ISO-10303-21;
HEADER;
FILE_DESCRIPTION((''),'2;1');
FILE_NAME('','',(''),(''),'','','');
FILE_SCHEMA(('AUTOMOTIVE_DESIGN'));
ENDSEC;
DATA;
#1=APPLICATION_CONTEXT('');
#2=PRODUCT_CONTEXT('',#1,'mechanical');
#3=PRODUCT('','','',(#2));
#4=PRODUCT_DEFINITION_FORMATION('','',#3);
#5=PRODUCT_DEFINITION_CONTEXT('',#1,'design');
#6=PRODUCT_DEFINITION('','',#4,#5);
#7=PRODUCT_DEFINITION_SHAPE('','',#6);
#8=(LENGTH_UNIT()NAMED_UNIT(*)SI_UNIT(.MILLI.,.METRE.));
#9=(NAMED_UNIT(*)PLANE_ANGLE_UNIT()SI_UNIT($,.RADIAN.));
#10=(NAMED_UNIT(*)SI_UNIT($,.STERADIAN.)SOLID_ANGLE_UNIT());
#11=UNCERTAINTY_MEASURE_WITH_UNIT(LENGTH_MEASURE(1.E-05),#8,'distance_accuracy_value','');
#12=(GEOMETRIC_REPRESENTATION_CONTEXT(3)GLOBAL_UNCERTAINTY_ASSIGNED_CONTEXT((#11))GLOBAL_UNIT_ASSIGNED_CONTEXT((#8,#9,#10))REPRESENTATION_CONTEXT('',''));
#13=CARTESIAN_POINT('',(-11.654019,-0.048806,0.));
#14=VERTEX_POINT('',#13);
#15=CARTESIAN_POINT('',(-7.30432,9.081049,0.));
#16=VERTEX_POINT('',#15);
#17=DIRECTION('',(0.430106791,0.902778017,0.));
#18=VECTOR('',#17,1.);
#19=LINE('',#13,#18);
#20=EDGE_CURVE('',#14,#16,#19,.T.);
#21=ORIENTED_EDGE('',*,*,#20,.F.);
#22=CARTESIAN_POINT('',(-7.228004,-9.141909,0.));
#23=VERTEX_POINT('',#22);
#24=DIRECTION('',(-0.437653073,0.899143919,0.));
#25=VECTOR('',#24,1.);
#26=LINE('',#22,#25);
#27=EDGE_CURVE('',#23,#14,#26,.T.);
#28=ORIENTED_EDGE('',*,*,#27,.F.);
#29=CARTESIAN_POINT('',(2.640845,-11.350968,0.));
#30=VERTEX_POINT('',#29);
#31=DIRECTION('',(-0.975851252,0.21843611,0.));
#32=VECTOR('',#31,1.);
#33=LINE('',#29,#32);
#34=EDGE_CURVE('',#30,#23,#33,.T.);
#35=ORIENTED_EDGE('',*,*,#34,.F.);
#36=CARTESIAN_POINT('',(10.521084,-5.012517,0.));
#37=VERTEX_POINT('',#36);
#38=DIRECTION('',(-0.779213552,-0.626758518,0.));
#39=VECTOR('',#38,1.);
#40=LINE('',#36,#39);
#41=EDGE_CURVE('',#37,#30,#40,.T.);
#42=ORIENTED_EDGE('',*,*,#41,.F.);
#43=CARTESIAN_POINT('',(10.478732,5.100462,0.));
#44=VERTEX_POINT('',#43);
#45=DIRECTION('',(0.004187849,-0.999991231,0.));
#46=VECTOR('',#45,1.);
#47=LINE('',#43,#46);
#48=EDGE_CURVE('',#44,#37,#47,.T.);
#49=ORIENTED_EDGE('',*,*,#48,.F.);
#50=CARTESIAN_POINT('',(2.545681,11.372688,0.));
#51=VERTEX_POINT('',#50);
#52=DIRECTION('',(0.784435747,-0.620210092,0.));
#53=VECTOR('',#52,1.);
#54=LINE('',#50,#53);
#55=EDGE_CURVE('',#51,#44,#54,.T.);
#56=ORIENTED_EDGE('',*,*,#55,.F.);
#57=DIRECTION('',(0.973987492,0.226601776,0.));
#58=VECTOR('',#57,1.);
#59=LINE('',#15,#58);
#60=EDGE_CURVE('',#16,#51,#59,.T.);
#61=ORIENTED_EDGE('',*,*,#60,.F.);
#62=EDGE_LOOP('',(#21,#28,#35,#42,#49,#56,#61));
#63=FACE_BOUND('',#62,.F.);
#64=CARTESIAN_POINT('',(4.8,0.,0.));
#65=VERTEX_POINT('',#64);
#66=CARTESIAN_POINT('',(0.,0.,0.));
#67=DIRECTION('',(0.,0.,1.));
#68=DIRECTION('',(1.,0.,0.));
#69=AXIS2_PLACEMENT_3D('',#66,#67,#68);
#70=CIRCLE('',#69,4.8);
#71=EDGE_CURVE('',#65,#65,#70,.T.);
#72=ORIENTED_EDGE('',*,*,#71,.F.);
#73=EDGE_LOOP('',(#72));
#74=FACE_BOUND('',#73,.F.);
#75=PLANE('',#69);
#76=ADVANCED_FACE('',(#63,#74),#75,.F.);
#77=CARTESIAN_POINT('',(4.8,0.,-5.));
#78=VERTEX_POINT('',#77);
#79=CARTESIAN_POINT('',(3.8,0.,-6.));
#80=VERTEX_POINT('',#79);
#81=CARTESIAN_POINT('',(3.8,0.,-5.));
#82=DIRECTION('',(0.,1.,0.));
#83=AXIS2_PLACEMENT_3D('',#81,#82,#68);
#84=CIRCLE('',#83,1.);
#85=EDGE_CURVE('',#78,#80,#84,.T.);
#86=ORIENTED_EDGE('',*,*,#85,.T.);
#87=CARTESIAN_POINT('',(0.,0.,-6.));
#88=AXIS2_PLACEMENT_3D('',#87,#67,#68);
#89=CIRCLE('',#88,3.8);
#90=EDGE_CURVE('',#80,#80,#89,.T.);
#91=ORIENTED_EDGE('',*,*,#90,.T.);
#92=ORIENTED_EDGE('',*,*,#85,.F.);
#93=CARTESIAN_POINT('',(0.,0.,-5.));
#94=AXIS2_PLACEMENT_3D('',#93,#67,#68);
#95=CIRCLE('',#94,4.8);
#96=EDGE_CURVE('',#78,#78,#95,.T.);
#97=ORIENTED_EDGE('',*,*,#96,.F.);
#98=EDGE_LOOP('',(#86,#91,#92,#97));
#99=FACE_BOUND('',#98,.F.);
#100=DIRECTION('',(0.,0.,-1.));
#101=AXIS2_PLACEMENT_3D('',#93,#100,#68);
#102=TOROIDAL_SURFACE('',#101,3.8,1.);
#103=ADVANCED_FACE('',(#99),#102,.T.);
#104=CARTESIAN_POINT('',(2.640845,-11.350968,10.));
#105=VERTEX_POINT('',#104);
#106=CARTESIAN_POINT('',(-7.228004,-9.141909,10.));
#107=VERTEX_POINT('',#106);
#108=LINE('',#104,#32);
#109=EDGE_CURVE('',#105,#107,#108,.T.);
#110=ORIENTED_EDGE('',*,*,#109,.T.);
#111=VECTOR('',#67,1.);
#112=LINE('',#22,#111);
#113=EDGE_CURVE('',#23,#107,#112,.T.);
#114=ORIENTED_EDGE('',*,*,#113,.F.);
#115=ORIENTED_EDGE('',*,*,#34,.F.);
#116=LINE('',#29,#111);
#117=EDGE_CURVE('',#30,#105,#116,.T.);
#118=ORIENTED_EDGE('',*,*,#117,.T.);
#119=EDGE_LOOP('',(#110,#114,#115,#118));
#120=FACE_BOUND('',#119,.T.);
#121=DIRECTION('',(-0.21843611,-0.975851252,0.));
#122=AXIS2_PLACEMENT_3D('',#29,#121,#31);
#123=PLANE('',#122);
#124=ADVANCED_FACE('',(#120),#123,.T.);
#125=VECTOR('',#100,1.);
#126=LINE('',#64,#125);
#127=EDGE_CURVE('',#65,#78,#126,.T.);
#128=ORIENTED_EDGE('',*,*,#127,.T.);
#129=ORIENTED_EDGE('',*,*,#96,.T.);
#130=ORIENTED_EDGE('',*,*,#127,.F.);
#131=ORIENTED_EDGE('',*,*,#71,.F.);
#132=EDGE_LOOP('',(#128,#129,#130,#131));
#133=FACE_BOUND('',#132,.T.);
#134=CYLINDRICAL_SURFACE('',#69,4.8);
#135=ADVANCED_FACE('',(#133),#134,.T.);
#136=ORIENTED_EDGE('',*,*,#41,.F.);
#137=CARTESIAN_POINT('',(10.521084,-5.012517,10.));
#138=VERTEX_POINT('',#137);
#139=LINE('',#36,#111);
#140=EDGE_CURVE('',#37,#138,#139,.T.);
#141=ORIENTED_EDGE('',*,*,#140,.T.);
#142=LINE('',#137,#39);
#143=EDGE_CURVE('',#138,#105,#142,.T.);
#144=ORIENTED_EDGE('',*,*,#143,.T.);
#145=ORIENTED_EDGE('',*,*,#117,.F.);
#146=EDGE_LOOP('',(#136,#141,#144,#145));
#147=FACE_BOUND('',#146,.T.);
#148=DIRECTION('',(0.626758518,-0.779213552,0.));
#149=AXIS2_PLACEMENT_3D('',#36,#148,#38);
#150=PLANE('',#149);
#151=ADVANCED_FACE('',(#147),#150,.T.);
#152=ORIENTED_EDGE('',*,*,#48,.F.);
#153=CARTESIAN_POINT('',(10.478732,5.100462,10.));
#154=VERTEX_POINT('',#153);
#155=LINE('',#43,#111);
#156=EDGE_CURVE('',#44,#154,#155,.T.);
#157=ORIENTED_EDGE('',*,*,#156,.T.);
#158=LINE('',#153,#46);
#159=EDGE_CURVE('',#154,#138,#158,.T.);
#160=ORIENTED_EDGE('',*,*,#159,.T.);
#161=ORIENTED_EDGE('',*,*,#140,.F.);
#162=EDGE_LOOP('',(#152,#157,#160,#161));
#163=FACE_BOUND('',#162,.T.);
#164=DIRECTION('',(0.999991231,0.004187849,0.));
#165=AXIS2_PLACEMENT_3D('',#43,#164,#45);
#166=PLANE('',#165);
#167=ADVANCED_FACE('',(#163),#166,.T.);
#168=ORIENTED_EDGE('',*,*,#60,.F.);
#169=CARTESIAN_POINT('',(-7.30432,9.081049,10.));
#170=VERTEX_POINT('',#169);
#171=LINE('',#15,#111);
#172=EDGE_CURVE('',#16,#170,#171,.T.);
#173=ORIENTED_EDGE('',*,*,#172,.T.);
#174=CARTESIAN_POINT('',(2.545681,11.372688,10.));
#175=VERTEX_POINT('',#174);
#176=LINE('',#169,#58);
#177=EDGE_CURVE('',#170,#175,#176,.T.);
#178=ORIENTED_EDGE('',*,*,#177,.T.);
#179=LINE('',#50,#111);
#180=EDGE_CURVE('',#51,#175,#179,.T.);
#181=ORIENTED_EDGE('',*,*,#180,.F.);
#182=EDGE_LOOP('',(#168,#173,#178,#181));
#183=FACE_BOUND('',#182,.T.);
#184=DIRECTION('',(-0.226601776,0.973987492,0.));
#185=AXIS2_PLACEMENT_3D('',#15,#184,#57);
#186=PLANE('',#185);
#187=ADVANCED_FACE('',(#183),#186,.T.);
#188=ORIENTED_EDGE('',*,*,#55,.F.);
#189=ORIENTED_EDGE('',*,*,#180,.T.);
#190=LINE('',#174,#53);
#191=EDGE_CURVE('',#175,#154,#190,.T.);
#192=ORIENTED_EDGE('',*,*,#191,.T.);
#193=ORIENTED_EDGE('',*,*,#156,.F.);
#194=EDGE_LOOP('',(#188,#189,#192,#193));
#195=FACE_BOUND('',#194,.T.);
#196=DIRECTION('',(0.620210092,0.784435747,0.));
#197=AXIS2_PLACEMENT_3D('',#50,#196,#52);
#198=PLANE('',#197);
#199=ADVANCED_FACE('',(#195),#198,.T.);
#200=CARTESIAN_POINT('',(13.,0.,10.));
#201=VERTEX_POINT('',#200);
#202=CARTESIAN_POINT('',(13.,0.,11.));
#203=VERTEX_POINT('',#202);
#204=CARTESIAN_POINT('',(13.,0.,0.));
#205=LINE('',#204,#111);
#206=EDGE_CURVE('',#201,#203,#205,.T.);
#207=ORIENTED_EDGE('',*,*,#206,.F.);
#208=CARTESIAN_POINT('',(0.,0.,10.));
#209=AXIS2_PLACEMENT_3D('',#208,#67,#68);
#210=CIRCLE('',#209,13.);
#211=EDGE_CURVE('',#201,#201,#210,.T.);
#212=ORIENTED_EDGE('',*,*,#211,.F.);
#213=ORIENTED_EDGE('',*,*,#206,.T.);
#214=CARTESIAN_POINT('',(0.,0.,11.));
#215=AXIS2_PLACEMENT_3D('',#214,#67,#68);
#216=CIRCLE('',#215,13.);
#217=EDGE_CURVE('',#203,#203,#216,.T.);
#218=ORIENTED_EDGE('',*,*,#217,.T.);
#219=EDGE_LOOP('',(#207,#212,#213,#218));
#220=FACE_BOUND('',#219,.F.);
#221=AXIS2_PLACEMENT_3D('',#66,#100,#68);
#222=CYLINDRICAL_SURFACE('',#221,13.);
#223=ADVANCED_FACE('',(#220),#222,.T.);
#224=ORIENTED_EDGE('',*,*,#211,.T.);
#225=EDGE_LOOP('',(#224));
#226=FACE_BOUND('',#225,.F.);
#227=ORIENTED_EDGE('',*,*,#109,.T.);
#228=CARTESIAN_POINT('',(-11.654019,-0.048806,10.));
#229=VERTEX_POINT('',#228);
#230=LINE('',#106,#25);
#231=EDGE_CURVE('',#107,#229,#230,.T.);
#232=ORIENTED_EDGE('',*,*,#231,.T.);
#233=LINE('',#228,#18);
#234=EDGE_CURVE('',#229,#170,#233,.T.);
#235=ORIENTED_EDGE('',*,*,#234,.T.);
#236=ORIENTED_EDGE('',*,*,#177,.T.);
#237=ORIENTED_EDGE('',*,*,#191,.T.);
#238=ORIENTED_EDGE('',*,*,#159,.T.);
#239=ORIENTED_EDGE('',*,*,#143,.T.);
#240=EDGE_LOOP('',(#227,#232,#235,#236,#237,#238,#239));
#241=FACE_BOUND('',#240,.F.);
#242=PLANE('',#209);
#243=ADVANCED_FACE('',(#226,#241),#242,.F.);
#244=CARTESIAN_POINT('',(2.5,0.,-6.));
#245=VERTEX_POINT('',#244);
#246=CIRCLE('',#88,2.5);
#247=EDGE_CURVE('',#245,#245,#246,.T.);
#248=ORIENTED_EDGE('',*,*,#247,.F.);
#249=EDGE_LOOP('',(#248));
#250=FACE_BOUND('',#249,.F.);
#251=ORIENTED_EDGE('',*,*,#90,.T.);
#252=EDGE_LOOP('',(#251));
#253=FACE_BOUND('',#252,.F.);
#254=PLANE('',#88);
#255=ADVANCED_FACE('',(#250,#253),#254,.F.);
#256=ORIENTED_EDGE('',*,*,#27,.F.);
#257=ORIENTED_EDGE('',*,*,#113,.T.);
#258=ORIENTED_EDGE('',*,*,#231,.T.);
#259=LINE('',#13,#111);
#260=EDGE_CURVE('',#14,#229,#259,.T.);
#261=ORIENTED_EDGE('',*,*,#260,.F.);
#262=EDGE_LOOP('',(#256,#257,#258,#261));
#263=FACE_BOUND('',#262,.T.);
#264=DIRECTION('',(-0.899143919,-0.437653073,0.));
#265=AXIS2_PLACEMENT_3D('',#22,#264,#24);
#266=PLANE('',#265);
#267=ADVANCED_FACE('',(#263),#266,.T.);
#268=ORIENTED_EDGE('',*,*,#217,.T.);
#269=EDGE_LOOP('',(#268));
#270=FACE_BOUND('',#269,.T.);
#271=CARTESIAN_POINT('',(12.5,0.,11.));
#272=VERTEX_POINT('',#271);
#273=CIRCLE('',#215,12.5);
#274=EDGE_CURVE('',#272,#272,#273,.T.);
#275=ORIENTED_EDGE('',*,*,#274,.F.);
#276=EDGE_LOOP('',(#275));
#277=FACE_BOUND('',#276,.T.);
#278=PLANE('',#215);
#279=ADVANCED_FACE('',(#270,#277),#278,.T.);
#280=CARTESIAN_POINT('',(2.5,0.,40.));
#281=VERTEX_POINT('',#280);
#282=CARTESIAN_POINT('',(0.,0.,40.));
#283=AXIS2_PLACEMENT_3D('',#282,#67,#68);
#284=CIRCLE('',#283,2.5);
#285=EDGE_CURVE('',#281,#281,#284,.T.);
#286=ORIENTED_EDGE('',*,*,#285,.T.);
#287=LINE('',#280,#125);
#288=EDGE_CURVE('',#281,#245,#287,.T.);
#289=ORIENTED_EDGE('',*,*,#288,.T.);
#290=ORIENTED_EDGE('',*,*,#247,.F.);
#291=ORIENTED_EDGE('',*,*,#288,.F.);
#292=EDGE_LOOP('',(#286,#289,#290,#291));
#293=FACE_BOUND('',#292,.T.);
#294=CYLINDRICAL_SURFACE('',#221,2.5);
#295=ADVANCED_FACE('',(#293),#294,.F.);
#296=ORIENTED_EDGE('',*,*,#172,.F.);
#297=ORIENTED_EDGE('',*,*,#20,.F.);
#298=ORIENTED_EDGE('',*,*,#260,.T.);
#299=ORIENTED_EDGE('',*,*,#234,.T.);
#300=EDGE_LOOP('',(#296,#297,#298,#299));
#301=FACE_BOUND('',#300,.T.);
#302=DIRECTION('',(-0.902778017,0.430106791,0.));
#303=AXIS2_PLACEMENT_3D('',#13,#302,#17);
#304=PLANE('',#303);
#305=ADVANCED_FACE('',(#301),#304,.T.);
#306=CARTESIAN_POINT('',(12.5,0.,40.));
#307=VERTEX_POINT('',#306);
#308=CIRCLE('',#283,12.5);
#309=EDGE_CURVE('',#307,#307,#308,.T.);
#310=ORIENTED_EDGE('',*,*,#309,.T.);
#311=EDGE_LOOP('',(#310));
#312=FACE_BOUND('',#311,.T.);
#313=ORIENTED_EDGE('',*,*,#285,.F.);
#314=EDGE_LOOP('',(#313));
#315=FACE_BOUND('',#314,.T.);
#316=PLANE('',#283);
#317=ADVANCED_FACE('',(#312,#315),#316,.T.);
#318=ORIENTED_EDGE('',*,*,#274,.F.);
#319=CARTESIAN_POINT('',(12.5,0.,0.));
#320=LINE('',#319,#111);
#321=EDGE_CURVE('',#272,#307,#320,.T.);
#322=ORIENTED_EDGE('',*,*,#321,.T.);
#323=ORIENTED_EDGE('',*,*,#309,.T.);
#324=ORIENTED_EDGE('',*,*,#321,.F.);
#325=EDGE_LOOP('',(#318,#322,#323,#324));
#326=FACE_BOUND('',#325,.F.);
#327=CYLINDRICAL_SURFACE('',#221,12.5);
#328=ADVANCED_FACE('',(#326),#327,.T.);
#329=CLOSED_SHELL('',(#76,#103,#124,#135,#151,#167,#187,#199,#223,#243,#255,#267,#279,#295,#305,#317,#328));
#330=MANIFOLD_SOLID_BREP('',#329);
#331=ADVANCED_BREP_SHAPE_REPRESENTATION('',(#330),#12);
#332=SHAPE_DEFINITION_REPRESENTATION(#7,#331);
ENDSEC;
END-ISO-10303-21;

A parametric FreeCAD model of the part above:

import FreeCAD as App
import Part
import Sketcher
Q = App.Units.Quantity


def edges_at(feature, points):
    """Names of the edges that pass closest to the given points."""
    edges = feature.Shape.Edges
    near = lambda p: min(range(len(edges)), key=lambda i: edges[i].distToShape(Part.Vertex(*p))[0])
    return sorted({f"Edge{near(p) + 1}" for p in points})

doc = App.newDocument("Part")
body = doc.addObject("PartDesign::Body", "Body")

sketch1 = body.newObject("Sketcher::SketchObject", "Sketch")
sketch1.AttachmentSupport = (doc.getObject("XY_Plane"), [""])
sketch1.MapMode = "FlatFace"
sketch1.addGeometry([
    Part.Circle(App.Vector(0, 0, 0), App.Vector(0, 0, 1), 4.8),
    Part.Circle(App.Vector(0, 0, 0), App.Vector(0, 0, 1), 2.5),
], False)
sketch1.addConstraint([
    Sketcher.Constraint("Coincident", 0, 3, -1, 1),
    Sketcher.Constraint("Coincident", 1, 3, -1, 1),
    Sketcher.Constraint("Diameter", 1, Q("5 mm")),
    Sketcher.Constraint("Diameter", 0, Q("9.6 mm")),
])
pad1 = body.newObject("PartDesign::Pad", "Pad")
pad1.Profile = sketch1
pad1.Length = 6
pad1.Reversed = True

sketch2 = body.newObject("Sketcher::SketchObject", "Sketch001")
sketch2.AttachmentSupport = (doc.getObject("XY_Plane"), [""])
sketch2.MapMode = "FlatFace"
sketch2.addGeometry([
    Part.LineSegment(App.Vector(2.640845, -11.350968, 0), App.Vector(10.521084, -5.012517, 0)),
    Part.LineSegment(App.Vector(10.521084, -5.012517, 0), App.Vector(10.478732, 5.100462, 0)),
    Part.LineSegment(App.Vector(10.478732, 5.100462, 0), App.Vector(2.545681, 11.372688, 0)),
    Part.LineSegment(App.Vector(2.545681, 11.372688, 0), App.Vector(-7.30432, 9.081049, 0)),
    Part.LineSegment(App.Vector(-7.30432, 9.081049, 0), App.Vector(-11.654019, -0.048806, 0)),
    Part.LineSegment(App.Vector(-11.654019, -0.048806, 0), App.Vector(-7.228004, -9.141909, 0)),
    Part.LineSegment(App.Vector(-7.228004, -9.141909, 0), App.Vector(2.640845, -11.350968, 0)),
    Part.Circle(App.Vector(0, 0, 0), App.Vector(0, 0, 1), 2.5),
], False)
sketch2.addConstraint([
    Sketcher.Constraint("Coincident", 0, 2, 1, 1),
    Sketcher.Constraint("Coincident", 1, 2, 2, 1),
    Sketcher.Constraint("Coincident", 2, 2, 3, 1),
    Sketcher.Constraint("Coincident", 3, 2, 4, 1),
    Sketcher.Constraint("Coincident", 4, 2, 5, 1),
    Sketcher.Constraint("Coincident", 5, 2, 6, 1),
    Sketcher.Constraint("Coincident", 6, 2, 0, 1),
    Sketcher.Constraint("Coincident", 7, 3, -1, 1),
    Sketcher.Constraint("Equal", 0, 1),
    Sketcher.Constraint("Equal", 1, 2),
    Sketcher.Constraint("Equal", 2, 3),
    Sketcher.Constraint("Equal", 3, 4),
    Sketcher.Constraint("Equal", 4, 5),
    Sketcher.Constraint("Equal", 5, 6),
    Sketcher.Constraint("Diameter", 7, Q("5 mm")),
    Sketcher.Constraint("DistanceX", 3, 2, 2, 2, Q("9.850001 mm")),
    Sketcher.Constraint("DistanceX", 4, 2, 3, 2, Q("4.349699 mm")),
    Sketcher.Constraint("DistanceX", -1, 1, 2, 2, Q("2.545681 mm")),
    Sketcher.Constraint("DistanceY", -1, 1, 3, 2, Q("9.081049 mm")),
    Sketcher.Constraint("DistanceY", 5, 2, -1, 1, Q("9.141909 mm")),
    Sketcher.Constraint("DistanceX", 1, 2, 0, 2, Q("0.042352 mm")),
    Sketcher.Constraint("DistanceY", 0, 2, 1, 2, Q("10.112979 mm")),
    Sketcher.Constraint("DistanceX", 2, 2, 1, 2, Q("7.933051 mm")),
])
pad2 = body.newObject("PartDesign::Pad", "Pad001")
pad2.Profile = sketch2
pad2.Length = 40

sketch3 = body.newObject("Sketcher::SketchObject", "Sketch002")
sketch3.AttachmentSupport = (doc.getObject("XY_Plane"), [""])
sketch3.MapMode = "FlatFace"
sketch3.addGeometry([
    Part.Circle(App.Vector(0, 0, 0), App.Vector(0, 0, 1), 12.5),
    Part.LineSegment(App.Vector(2.545681, 11.372688, 0), App.Vector(10.478732, 5.100462, 0)),
    Part.LineSegment(App.Vector(10.478732, 5.100462, 0), App.Vector(10.521084, -5.012517, 0)),
    Part.LineSegment(App.Vector(10.521084, -5.012517, 0), App.Vector(2.640845, -11.350968, 0)),
    Part.LineSegment(App.Vector(2.640845, -11.350968, 0), App.Vector(-7.228004, -9.141909, 0)),
    Part.LineSegment(App.Vector(-7.228004, -9.141909, 0), App.Vector(-11.654019, -0.048806, 0)),
    Part.LineSegment(App.Vector(-11.654019, -0.048806, 0), App.Vector(-7.30432, 9.081049, 0)),
    Part.LineSegment(App.Vector(-7.30432, 9.081049, 0), App.Vector(2.545681, 11.372688, 0)),
], False)
sketch3.addConstraint([
    Sketcher.Constraint("Coincident", 1, 2, 2, 1),
    Sketcher.Constraint("Coincident", 2, 2, 3, 1),
    Sketcher.Constraint("Coincident", 3, 2, 4, 1),
    Sketcher.Constraint("Coincident", 4, 2, 5, 1),
    Sketcher.Constraint("Coincident", 5, 2, 6, 1),
    Sketcher.Constraint("Coincident", 6, 2, 7, 1),
    Sketcher.Constraint("Coincident", 7, 2, 1, 1),
    Sketcher.Constraint("Coincident", 0, 3, -1, 1),
    Sketcher.Constraint("Equal", 1, 2),
    Sketcher.Constraint("Equal", 2, 3),
    Sketcher.Constraint("Equal", 3, 4),
    Sketcher.Constraint("Equal", 4, 5),
    Sketcher.Constraint("Equal", 5, 6),
    Sketcher.Constraint("Equal", 6, 7),
    Sketcher.Constraint("Diameter", 0, Q("25 mm")),
    Sketcher.Constraint("DistanceX", 6, 2, 7, 2, Q("9.850001 mm")),
    Sketcher.Constraint("DistanceX", 5, 2, 6, 2, Q("4.349699 mm")),
    Sketcher.Constraint("DistanceY", 4, 2, -1, 1, Q("9.141909 mm")),
    Sketcher.Constraint("DistanceX", 5, 2, -1, 1, Q("11.654019 mm")),
    Sketcher.Constraint("DistanceY", -1, 1, 6, 2, Q("9.081049 mm")),
    Sketcher.Constraint("DistanceX", 1, 2, 2, 2, Q("0.042352 mm")),
    Sketcher.Constraint("DistanceY", 2, 2, 1, 2, Q("10.112979 mm")),
    Sketcher.Constraint("DistanceX", 3, 2, 2, 2, Q("7.880239 mm")),
])
pad3 = body.newObject("PartDesign::Pad", "Pad002")
pad3.Profile = sketch3
pad3.Length = 40

sketch4 = body.newObject("Sketcher::SketchObject", "Sketch003")
sketch4.AttachmentSupport = (doc.getObject("XY_Plane"), [""])
sketch4.MapMode = "FlatFace"
sketch4.addGeometry([
    Part.Circle(App.Vector(0, 0, 0), App.Vector(0, 0, 1), 12.5),
    Part.LineSegment(App.Vector(2.545681, 11.372688, 0), App.Vector(10.478732, 5.100462, 0)),
    Part.LineSegment(App.Vector(10.478732, 5.100462, 0), App.Vector(10.521084, -5.012517, 0)),
    Part.LineSegment(App.Vector(10.521084, -5.012517, 0), App.Vector(2.640845, -11.350968, 0)),
    Part.LineSegment(App.Vector(2.640845, -11.350968, 0), App.Vector(-7.228004, -9.141909, 0)),
    Part.LineSegment(App.Vector(-7.228004, -9.141909, 0), App.Vector(-11.654019, -0.048806, 0)),
    Part.LineSegment(App.Vector(-11.654019, -0.048806, 0), App.Vector(-7.30432, 9.081049, 0)),
    Part.LineSegment(App.Vector(-7.30432, 9.081049, 0), App.Vector(2.545681, 11.372688, 0)),
], False)
sketch4.addConstraint([
    Sketcher.Constraint("Coincident", 1, 2, 2, 1),
    Sketcher.Constraint("Coincident", 2, 2, 3, 1),
    Sketcher.Constraint("Coincident", 3, 2, 4, 1),
    Sketcher.Constraint("Coincident", 4, 2, 5, 1),
    Sketcher.Constraint("Coincident", 5, 2, 6, 1),
    Sketcher.Constraint("Coincident", 6, 2, 7, 1),
    Sketcher.Constraint("Coincident", 7, 2, 1, 1),
    Sketcher.Constraint("Coincident", 0, 3, -1, 1),
    Sketcher.Constraint("Equal", 1, 2),
    Sketcher.Constraint("Equal", 2, 3),
    Sketcher.Constraint("Equal", 3, 4),
    Sketcher.Constraint("Equal", 4, 5),
    Sketcher.Constraint("Equal", 5, 6),
    Sketcher.Constraint("Equal", 6, 7),
    Sketcher.Constraint("Diameter", 0, Q("25 mm")),
    Sketcher.Constraint("DistanceX", 6, 2, 7, 2, Q("9.850001 mm")),
    Sketcher.Constraint("DistanceX", 5, 2, 6, 2, Q("4.349699 mm")),
    Sketcher.Constraint("DistanceY", 4, 2, -1, 1, Q("9.141909 mm")),
    Sketcher.Constraint("DistanceX", 5, 2, -1, 1, Q("11.654019 mm")),
    Sketcher.Constraint("DistanceY", -1, 1, 6, 2, Q("9.081049 mm")),
    Sketcher.Constraint("DistanceX", 1, 2, 2, 2, Q("0.042352 mm")),
    Sketcher.Constraint("DistanceY", 2, 2, 1, 2, Q("10.112979 mm")),
    Sketcher.Constraint("DistanceX", 3, 2, 2, 2, Q("7.880239 mm")),
])
pocket1 = body.newObject("PartDesign::Pocket", "Pocket")
pocket1.Profile = sketch4
pocket1.Length = 10
pocket1.Reversed = True

sketch5 = body.newObject("Sketcher::SketchObject", "Sketch004")
sketch5.AttachmentSupport = (doc.getObject("XY_Plane"), [""])
sketch5.MapMode = "FlatFace"
sketch5.addGeometry([
    Part.Circle(App.Vector(0, 0, 0), App.Vector(0, 0, 1), 13),
    Part.Circle(App.Vector(0, 0, 0), App.Vector(0, 0, 1), 12.5),
], False)
sketch5.addConstraint([
    Sketcher.Constraint("Coincident", 0, 3, -1, 1),
    Sketcher.Constraint("Coincident", 1, 3, -1, 1),
    Sketcher.Constraint("Diameter", 0, Q("26 mm")),
    Sketcher.Constraint("Diameter", 1, Q("25 mm")),
])
pad4 = body.newObject("PartDesign::Pad", "Pad003")
pad4.Profile = sketch5
pad4.Length = 11

sketch6 = body.newObject("Sketcher::SketchObject", "Sketch005")
sketch6.AttachmentSupport = (doc.getObject("XY_Plane"), [""])
sketch6.MapMode = "FlatFace"
sketch6.addGeometry([
    Part.Circle(App.Vector(0, 0, 0), App.Vector(0, 0, 1), 13),
    Part.Circle(App.Vector(0, 0, 0), App.Vector(0, 0, 1), 12.5),
], False)
sketch6.addConstraint([
    Sketcher.Constraint("Coincident", 0, 3, -1, 1),
    Sketcher.Constraint("Coincident", 1, 3, -1, 1),
    Sketcher.Constraint("Diameter", 0, Q("26 mm")),
    Sketcher.Constraint("Diameter", 1, Q("25 mm")),
])
pocket2 = body.newObject("PartDesign::Pocket", "Pocket001")
pocket2.Profile = sketch6
pocket2.Length = 10
pocket2.Reversed = True
doc.recompute()

fillet = body.newObject("PartDesign::Fillet", "Fillet")
fillet.Base = (pocket2, edges_at(pocket2, [(-4.8, 0, -6)]))
fillet.Radius = 1

doc.recompute()
